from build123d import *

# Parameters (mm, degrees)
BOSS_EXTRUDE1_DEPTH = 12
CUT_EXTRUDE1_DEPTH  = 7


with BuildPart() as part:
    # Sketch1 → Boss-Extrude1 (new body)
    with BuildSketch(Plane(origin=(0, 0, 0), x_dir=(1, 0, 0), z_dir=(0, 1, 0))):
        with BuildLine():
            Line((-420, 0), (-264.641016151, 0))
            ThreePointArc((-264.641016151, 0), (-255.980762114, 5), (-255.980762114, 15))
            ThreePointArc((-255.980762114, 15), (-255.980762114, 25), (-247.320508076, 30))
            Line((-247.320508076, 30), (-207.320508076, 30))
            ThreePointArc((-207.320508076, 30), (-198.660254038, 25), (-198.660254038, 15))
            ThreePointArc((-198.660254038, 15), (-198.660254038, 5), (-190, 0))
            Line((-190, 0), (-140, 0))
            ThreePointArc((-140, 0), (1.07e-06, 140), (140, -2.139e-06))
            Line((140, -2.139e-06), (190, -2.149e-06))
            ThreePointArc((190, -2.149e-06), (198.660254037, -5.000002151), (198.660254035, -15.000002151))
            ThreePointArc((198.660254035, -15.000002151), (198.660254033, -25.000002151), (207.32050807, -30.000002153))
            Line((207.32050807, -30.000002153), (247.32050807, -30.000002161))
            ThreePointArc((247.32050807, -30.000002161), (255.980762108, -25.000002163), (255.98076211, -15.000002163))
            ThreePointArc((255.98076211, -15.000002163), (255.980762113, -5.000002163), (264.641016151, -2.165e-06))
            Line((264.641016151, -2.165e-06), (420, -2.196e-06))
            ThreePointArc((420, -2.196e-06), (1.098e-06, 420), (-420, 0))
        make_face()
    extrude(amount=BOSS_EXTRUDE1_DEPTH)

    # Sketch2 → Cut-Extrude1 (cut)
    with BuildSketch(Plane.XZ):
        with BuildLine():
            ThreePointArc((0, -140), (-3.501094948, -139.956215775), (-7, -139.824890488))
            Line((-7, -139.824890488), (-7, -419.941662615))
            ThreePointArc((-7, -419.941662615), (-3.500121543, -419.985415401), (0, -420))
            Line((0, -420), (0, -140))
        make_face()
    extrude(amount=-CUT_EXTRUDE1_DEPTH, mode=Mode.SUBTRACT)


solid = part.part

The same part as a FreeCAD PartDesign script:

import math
import FreeCAD as App
import Part
import Sketcher

doc = App.newDocument("Part")
body = doc.addObject("PartDesign::Body", "Body")

# Sketch on XZ plane
sketch1 = body.newObject("Sketcher::SketchObject", "Sketch")
sketch1.AttachmentSupport = (doc.getObject("XZ_Plane"), [""])
sketch1.MapMode = "FlatFace"
sketch1.addGeometry([
    Part.LineSegment(App.Vector(-420, 0, 0), App.Vector(-264.641016, 0, 0)),  # 0
    Part.ArcOfCircle(Part.Circle(App.Vector(-264.641016, -10, 0), App.Vector(0, 0, 1), 10), math.radians(-30), math.radians(90)),  # 1
    Part.ArcOfCircle(Part.Circle(App.Vector(-247.320508, -20, 0), App.Vector(0, 0, 1), 10), math.radians(150), math.radians(270)),  # 2
    Part.LineSegment(App.Vector(-247.320508, -30, 0), App.Vector(-207.320508, -30, 0)),  # 3
    Part.ArcOfCircle(Part.Circle(App.Vector(-207.320508, -20, 0), App.Vector(0, 0, 1), 10), math.radians(-90), math.radians(30)),  # 4
    Part.ArcOfCircle(Part.Circle(App.Vector(-190, -10, 0), App.Vector(0, 0, 1), 10), math.radians(90), math.radians(210)),  # 5
    Part.LineSegment(App.Vector(-190, 0, 0), App.Vector(-140, 0, 0)),  # 6
    Part.ArcOfCircle(Part.Circle(App.Vector(0, 0, 0), App.Vector(0, 0, 1), 140), math.radians(180), math.radians(360.000001)),  # 7
    Part.LineSegment(App.Vector(140, 0.000002, 0), App.Vector(190, 0.000002, 0)),  # 8
    Part.ArcOfCircle(Part.Circle(App.Vector(190, 10.000002, 0), App.Vector(0, 0, 1), 10), math.radians(-90), math.radians(30)),  # 9
    Part.ArcOfCircle(Part.Circle(App.Vector(207.320508, 20.000002, 0), App.Vector(0, 0, 1), 10), math.radians(90), math.radians(210)),  # 10
    Part.LineSegment(App.Vector(207.320508, 30.000002, 0), App.Vector(247.320508, 30.000002, 0)),  # 11
    Part.ArcOfCircle(Part.Circle(App.Vector(247.320508, 20.000002, 0), App.Vector(0, 0, 1), 10), math.radians(-30), math.radians(90)),  # 12
    Part.ArcOfCircle(Part.Circle(App.Vector(264.641016, 10.000002, 0), App.Vector(0, 0, 1), 10), math.radians(150), math.radians(270)),  # 13
    Part.LineSegment(App.Vector(264.641016, 0.000002, 0), App.Vector(420, 0.000002, 0)),  # 14
    Part.ArcOfCircle(Part.Circle(App.Vector(0, 0, 0), App.Vector(0, 0, 1), 420), math.radians(180), math.radians(360)),  # 15
], False)
sketch1.addConstraint([
    Sketcher.Constraint("Tangent", 0, 2, 1, 2),
    Sketcher.Constraint("Tangent", 1, 1, 2, 1),
    Sketcher.Constraint("Tangent", 2, 2, 3, 1),
    Sketcher.Constraint("Tangent", 3, 2, 4, 1),
    Sketcher.Constraint("Tangent", 4, 2, 5, 2),
    Sketcher.Constraint("Tangent", 5, 1, 6, 1),
    Sketcher.Constraint("Coincident", 6, 2, 7, 1),
    Sketcher.Constraint("Coincident", 7, 2, 8, 1),
    Sketcher.Constraint("Tangent", 8, 2, 9, 1),
    Sketcher.Constraint("Tangent", 9, 2, 10, 2),
    Sketcher.Constraint("Tangent", 10, 1, 11, 1),
    Sketcher.Constraint("Tangent", 11, 2, 12, 2),
    Sketcher.Constraint("Tangent", 12, 1, 13, 1),
    Sketcher.Constraint("Tangent", 13, 2, 14, 1),
    Sketcher.Constraint("Coincident", 14, 2, 15, 2),
    Sketcher.Constraint("Coincident", 15, 1, 0, 1),
    Sketcher.Constraint("Horizontal", 0),
    Sketcher.Constraint("Horizontal", 3),
    Sketcher.Constraint("Horizontal", 6),
    Sketcher.Constraint("Horizontal", 8),
    Sketcher.Constraint("Horizontal", 11),
    Sketcher.Constraint("Horizontal", 14),
    Sketcher.Constraint("Coincident", 7, 3, -1, 1),
    Sketcher.Constraint("Coincident", 15, 3, -1, 1),
    Sketcher.Constraint("Equal", 1, 2),
    Sketcher.Constraint("Equal", 2, 4),
    Sketcher.Constraint("Equal", 4, 5),
    Sketcher.Constraint("Equal", 5, 9),
    Sketcher.Constraint("Equal", 9, 10),
    Sketcher.Constraint("Equal", 10, 12),
    Sketcher.Constraint("Equal", 12, 13),
    Sketcher.Constraint("Symmetric", 5, 3, 9, 3, -1, 1),
    Sketcher.Constraint("Symmetric", 2, 3, 12, 3, -1, 1),
    Sketcher.Constraint("Symmetric", 0, 2, 13, 2, -2),
    Sketcher.Constraint("PointOnObject", 5, 1, -1),
    Sketcher.Constraint("Radius", 1, 10.0),
    Sketcher.Constraint("Radius", 7, 140.0),
    Sketcher.Constraint("Radius", 15, 420.0),
    Sketcher.Constraint("DistanceX", 3, 1, 3, 2, 40.0),
    Sketcher.Constraint("DistanceX", 6, 1, 6, 2, 50.0),
    Sketcher.Constraint("DistanceY", 2, 3, -1, 1, 20.0),
])
pad1 = body.newObject("PartDesign::Pad", "Pad")
pad1.Profile = sketch1
pad1.Length = 12
pad1.Reversed = True

# Sketch on XZ plane
sketch2 = body.newObject("Sketcher::SketchObject", "Sketch001")
sketch2.AttachmentSupport = (doc.getObject("XZ_Plane"), [""])
sketch2.MapMode = "FlatFace"
sketch2.addGeometry([
    Part.ArcOfCircle(Part.Circle(App.Vector(0, 0.000001, 0), App.Vector(0, 0, 1), 140.000001), math.radians(-92.865984), math.radians(-90)),
    Part.LineSegment(App.Vector(-7, -139.82489, 0), App.Vector(-7, -419.941663, 0)),
    Part.ArcOfCircle(Part.Circle(App.Vector(0, -0.000015, 0), App.Vector(0, 0, 1), 419.999985), math.radians(-90.954974), math.radians(-90)),
    Part.LineSegment(App.Vector(0, -420, 0), App.Vector(0, -140, 0)),
], False)
sketch2.addConstraint([
    Sketcher.Constraint("Coincident", 0, 1, 1, 1),
    Sketcher.Constraint("Coincident", 1, 2, 2, 1),
    Sketcher.Constraint("Coincident", 2, 2, 3, 1),
    Sketcher.Constraint("Coincident", 3, 2, 0, 2),
    Sketcher.Constraint("Vertical", 1),
    Sketcher.Constraint("Vertical", 3),
    Sketcher.Constraint("Coincident", 0, 3, -1, 1),
    Sketcher.Constraint("PointOnObject", 2, 3, -2),
    Sketcher.Constraint("PointOnObject", 3, 2, -2),
    Sketcher.Constraint("Radius", 0, 140.000001),
    Sketcher.Constraint("DistanceY", 3, 1, 3, 2, 280.0),
    Sketcher.Constraint("DistanceX", 0, 1, -1, 1, 7.0),
    Sketcher.Constraint("Radius", 2, 419.999985),
])
pocket1 = body.newObject("PartDesign::Pocket", "Pocket")
pocket1.Profile = sketch2
pocket1.Length = 7

doc.recompute()
